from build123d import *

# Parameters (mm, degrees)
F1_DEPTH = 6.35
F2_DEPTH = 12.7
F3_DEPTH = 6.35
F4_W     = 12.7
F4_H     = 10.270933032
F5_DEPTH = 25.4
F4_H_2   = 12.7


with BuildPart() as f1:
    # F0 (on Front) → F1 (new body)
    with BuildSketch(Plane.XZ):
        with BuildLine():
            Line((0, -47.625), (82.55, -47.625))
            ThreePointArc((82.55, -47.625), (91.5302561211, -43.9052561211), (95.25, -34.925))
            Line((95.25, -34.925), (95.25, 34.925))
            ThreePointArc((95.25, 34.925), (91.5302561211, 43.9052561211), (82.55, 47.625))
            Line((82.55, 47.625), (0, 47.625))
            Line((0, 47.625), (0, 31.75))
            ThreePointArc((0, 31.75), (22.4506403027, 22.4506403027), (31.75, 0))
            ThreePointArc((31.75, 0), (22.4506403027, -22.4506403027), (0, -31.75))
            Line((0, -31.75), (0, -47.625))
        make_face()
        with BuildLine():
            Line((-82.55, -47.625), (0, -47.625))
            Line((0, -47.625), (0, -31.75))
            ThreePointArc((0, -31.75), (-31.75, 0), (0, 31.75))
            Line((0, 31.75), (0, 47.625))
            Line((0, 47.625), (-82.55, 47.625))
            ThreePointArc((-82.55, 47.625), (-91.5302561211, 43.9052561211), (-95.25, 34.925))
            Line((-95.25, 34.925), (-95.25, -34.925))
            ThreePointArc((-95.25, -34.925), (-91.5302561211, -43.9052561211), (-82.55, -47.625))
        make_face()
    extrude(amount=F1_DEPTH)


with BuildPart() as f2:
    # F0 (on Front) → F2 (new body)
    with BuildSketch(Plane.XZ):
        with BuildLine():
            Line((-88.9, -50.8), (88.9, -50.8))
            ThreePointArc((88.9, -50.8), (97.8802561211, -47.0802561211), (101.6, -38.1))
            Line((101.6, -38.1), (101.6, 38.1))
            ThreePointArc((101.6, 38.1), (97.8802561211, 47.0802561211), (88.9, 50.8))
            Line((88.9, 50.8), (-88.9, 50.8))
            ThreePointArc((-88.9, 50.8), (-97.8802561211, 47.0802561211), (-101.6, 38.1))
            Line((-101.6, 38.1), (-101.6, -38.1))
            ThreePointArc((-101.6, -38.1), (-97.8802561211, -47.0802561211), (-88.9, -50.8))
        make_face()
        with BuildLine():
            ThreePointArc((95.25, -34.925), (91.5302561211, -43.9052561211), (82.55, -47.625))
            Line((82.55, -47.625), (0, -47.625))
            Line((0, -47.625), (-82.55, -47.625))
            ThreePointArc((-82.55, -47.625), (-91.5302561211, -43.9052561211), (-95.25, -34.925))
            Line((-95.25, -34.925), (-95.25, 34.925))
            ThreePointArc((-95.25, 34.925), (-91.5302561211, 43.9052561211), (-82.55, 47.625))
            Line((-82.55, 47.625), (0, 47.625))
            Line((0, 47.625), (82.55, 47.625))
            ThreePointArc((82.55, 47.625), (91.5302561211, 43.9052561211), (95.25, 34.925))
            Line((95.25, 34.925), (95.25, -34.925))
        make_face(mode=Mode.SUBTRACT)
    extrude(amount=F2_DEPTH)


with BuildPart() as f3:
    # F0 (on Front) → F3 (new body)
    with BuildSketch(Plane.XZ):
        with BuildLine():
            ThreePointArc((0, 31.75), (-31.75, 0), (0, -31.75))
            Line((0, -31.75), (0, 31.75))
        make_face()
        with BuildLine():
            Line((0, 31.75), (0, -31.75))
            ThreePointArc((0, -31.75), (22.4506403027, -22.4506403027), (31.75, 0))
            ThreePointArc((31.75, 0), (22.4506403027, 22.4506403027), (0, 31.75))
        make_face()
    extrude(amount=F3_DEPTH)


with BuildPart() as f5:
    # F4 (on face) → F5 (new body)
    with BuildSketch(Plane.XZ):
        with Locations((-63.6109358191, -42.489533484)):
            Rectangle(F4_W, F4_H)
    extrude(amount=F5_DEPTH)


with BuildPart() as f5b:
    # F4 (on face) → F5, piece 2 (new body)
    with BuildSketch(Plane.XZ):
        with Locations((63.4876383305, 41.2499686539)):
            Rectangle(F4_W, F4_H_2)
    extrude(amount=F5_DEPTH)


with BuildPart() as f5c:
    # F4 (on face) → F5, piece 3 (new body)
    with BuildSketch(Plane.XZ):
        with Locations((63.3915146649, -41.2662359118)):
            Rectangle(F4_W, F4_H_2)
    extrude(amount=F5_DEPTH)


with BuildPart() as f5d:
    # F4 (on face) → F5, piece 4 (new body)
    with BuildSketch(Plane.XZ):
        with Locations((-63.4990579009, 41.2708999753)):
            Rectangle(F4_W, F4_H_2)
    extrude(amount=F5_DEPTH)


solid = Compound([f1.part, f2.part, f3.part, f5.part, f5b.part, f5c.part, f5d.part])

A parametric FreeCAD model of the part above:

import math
import FreeCAD as App
import Part
import Sketcher

V = App.Vector
Q = App.Units.Quantity


def add_polygon(sketch, points):
    """Adds a closed chain of lines whose ends are joined by coincident constraints."""
    first, n = sketch.GeometryCount, len(points)
    for a, b in zip(points, points[1:] + points[:1]):
        sketch.addGeometry(Part.LineSegment(App.Vector(*a, 0), App.Vector(*b, 0)), False)
    for i in range(n):
        sketch.addConstraint(Sketcher.Constraint("Coincident", first + i, 2, first + (i + 1) % n, 1))

doc = App.newDocument("Part")
body = doc.addObject("PartDesign::Body", "Body")

# Sketch on XZ plane
sketch1 = body.newObject("Sketcher::SketchObject", "Sketch")
sketch1.AttachmentSupport = (doc.getObject("XZ_Plane"), [""])
sketch1.MapMode = "FlatFace"
sketch1.addGeometry(Part.ArcOfCircle(Part.Circle(V(83, -35, 0), V(0, 0, 1), 13), math.radians(-90), math.radians(0)), False)
sketch1.addGeometry(Part.LineSegment(V(95, -35, 0), V(95, 35, 0)), False)
sketch1.addGeometry(Part.ArcOfCircle(Part.Circle(V(83, 35, 0), V(0, 0, 1), 13), math.radians(0), math.radians(90)), False)
sketch1.addGeometry(Part.LineSegment(V(83, 48, 0), V(-83, 48, 0)), False)
sketch1.addGeometry(Part.ArcOfCircle(Part.Circle(V(-83, 35, 0), V(0, 0, 1), 13), math.radians(90), math.radians(180)), False)
sketch1.addGeometry(Part.LineSegment(V(-95, 35, 0), V(-95, -35, 0)), False)
sketch1.addGeometry(Part.ArcOfCircle(Part.Circle(V(-83, -35, 0), V(0, 0, 1), 13), math.radians(180), math.radians(270)), False)
sketch1.addGeometry(Part.LineSegment(V(-83, -48, 0), V(83, -48, 0)), False)
sketch1.addGeometry(Part.ArcOfCircle(Part.Circle(V(0, 0, 0), V(0, 0, 1), 32), math.radians(0), math.radians(90)), False)
sketch1.addGeometry(Part.ArcOfCircle(Part.Circle(V(0, 0, 0), V(0, 0, 1), 32), math.radians(-90), math.radians(0)), False)
sketch1.addGeometry(Part.ArcOfCircle(Part.Circle(V(0, 0, 0), V(0, 0, 1), 32), math.radians(90), math.radians(270)), False)
sketch1.addConstraint(Sketcher.Constraint("Tangent", 0, 2, 1, 1))
sketch1.addConstraint(Sketcher.Constraint("Tangent", 1, 2, 2, 1))
sketch1.addConstraint(Sketcher.Constraint("Tangent", 2, 2, 3, 1))
sketch1.addConstraint(Sketcher.Constraint("Tangent", 3, 2, 4, 1))
sketch1.addConstraint(Sketcher.Constraint("Tangent", 4, 2, 5, 1))
sketch1.addConstraint(Sketcher.Constraint("Tangent", 5, 2, 6, 1))
sketch1.addConstraint(Sketcher.Constraint("Tangent", 6, 2, 7, 1))
sketch1.addConstraint(Sketcher.Constraint("Tangent", 7, 2, 0, 1))
sketch1.addConstraint(Sketcher.Constraint("Tangent", 8, 1, 9, 2))
sketch1.addConstraint(Sketcher.Constraint("Tangent", 9, 1, 10, 2))
sketch1.addConstraint(Sketcher.Constraint("Tangent", 10, 1, 8, 2))
sketch1.addConstraint(Sketcher.Constraint("Vertical", 1))
sketch1.addConstraint(Sketcher.Constraint("Horizontal", 3))
sketch1.addConstraint(Sketcher.Constraint("Vertical", 5))
sketch1.addConstraint(Sketcher.Constraint("Horizontal", 7))
sketch1.addConstraint(Sketcher.Constraint("Coincident", 8, 3, -1, 1))
sketch1.addConstraint(Sketcher.Constraint("Equal", 0, 2))
sketch1.addConstraint(Sketcher.Constraint("Equal", 2, 4))
sketch1.addConstraint(Sketcher.Constraint("Equal", 4, 6))
sketch1.addConstraint(Sketcher.Constraint("Symmetric", 0, 3, 4, 3, -1, 1))
sketch1.addConstraint(Sketcher.Constraint("PointOnObject", 8, 1, -1))
sketch1.addConstraint(Sketcher.Constraint("PointOnObject", 9, 1, -2))
sketch1.addConstraint(Sketcher.Constraint("PointOnObject", 10, 1, -2))
sketch1.addConstraint(Sketcher.Constraint("Radius", 0, Q("0.5 in")))
sketch1.addConstraint(Sketcher.Constraint("Radius", 8, Q("1.25 in")))
sketch1.addConstraint(Sketcher.Constraint("DistanceX", 3, 2, 3, 1, Q("6.5 in")))
sketch1.addConstraint(Sketcher.Constraint("DistanceY", 1, 1, 1, 2, Q("2.75 in")))
pad1 = body.newObject("PartDesign::Pad", "Pad")
pad1.Profile = sketch1
pad1.Length = Q("0.25 in")
body2 = doc.addObject("PartDesign::Body", "Body001")

# Sketch on XZ plane
sketch2 = body2.newObject("Sketcher::SketchObject", "Sketch001")
sketch2.AttachmentSupport = (doc.getObject("XZ_Plane001"), [""])
sketch2.MapMode = "FlatFace"
sketch2.addGeometry(Part.LineSegment(V(-89, -51, 0), V(89, -51, 0)), False)
sketch2.addGeometry(Part.ArcOfCircle(Part.Circle(V(89, -38, 0), V(0, 0, 1), 13), math.radians(-90), math.radians(0)), False)
sketch2.addGeometry(Part.LineSegment(V(102, -38, 0), V(102, 38, 0)), False)
sketch2.addGeometry(Part.ArcOfCircle(Part.Circle(V(89, 38, 0), V(0, 0, 1), 13), math.radians(0), math.radians(90)), False)
sketch2.addGeometry(Part.LineSegment(V(89, 51, 0), V(-89, 51, 0)), False)
sketch2.addGeometry(Part.ArcOfCircle(Part.Circle(V(-89, 38, 0), V(0, 0, 1), 13), math.radians(90), math.radians(180)), False)
sketch2.addGeometry(Part.LineSegment(V(-102, 38, 0), V(-102, -38, 0)), False)
sketch2.addGeometry(Part.ArcOfCircle(Part.Circle(V(-89, -38, 0), V(0, 0, 1), 13), math.radians(180), math.radians(270)), False)
sketch2.addGeometry(Part.LineSegment(V(95, 35, 0), V(95, -35, 0)), False)
sketch2.addGeometry(Part.ArcOfCircle(Part.Circle(V(83, -35, 0), V(0, 0, 1), 13), math.radians(-90), math.radians(0)), False)
sketch2.addGeometry(Part.LineSegment(V(83, -48, 0), V(-83, -48, 0)), False)
sketch2.addGeometry(Part.ArcOfCircle(Part.Circle(V(-83, -35, 0), V(0, 0, 1), 13), math.radians(180), math.radians(270)), False)
sketch2.addGeometry(Part.LineSegment(V(-95, -35, 0), V(-95, 35, 0)), False)
sketch2.addGeometry(Part.ArcOfCircle(Part.Circle(V(-83, 35, 0), V(0, 0, 1), 13), math.radians(90), math.radians(180)), False)
sketch2.addGeometry(Part.LineSegment(V(-83, 48, 0), V(83, 48, 0)), False)
sketch2.addGeometry(Part.ArcOfCircle(Part.Circle(V(83, 35, 0), V(0, 0, 1), 13), math.radians(0), math.radians(90)), False)
sketch2.addConstraint(Sketcher.Constraint("Tangent", 0, 2, 1, 1))
sketch2.addConstraint(Sketcher.Constraint("Tangent", 1, 2, 2, 1))
sketch2.addConstraint(Sketcher.Constraint("Tangent", 2, 2, 3, 1))
sketch2.addConstraint(Sketcher.Constraint("Tangent", 3, 2, 4, 1))
sketch2.addConstraint(Sketcher.Constraint("Tangent", 4, 2, 5, 1))
sketch2.addConstraint(Sketcher.Constraint("Tangent", 5, 2, 6, 1))
sketch2.addConstraint(Sketcher.Constraint("Tangent", 6, 2, 7, 1))
sketch2.addConstraint(Sketcher.Constraint("Tangent", 7, 2, 0, 1))
sketch2.addConstraint(Sketcher.Constraint("Tangent", 8, 2, 9, 2))
sketch2.addConstraint(Sketcher.Constraint("Tangent", 9, 1, 10, 1))
sketch2.addConstraint(Sketcher.Constraint("Tangent", 10, 2, 11, 2))
sketch2.addConstraint(Sketcher.Constraint("Tangent", 11, 1, 12, 1))
sketch2.addConstraint(Sketcher.Constraint("Tangent", 12, 2, 13, 2))
sketch2.addConstraint(Sketcher.Constraint("Tangent", 13, 1, 14, 1))
sketch2.addConstraint(Sketcher.Constraint("Tangent", 14, 2, 15, 2))
sketch2.addConstraint(Sketcher.Constraint("Tangent", 15, 1, 8, 1))
sketch2.addConstraint(Sketcher.Constraint("Horizontal", 0))
sketch2.addConstraint(Sketcher.Constraint("Vertical", 2))
sketch2.addConstraint(Sketcher.Constraint("Horizontal", 4))
sketch2.addConstraint(Sketcher.Constraint("Vertical", 6))
sketch2.addConstraint(Sketcher.Constraint("Vertical", 8))
sketch2.addConstraint(Sketcher.Constraint("Horizontal", 10))
sketch2.addConstraint(Sketcher.Constraint("Vertical", 12))
sketch2.addConstraint(Sketcher.Constraint("Horizontal", 14))
sketch2.addConstraint(Sketcher.Constraint("Equal", 1, 3))
sketch2.addConstraint(Sketcher.Constraint("Equal", 3, 5))
sketch2.addConstraint(Sketcher.Constraint("Equal", 5, 7))
sketch2.addConstraint(Sketcher.Constraint("Equal", 7, 9))
sketch2.addConstraint(Sketcher.Constraint("Equal", 9, 11))
sketch2.addConstraint(Sketcher.Constraint("Equal", 11, 13))
sketch2.addConstraint(Sketcher.Constraint("Equal", 13, 15))
sketch2.addConstraint(Sketcher.Constraint("Symmetric", 1, 3, 5, 3, -1, 1))
sketch2.addConstraint(Sketcher.Constraint("Symmetric", 9, 3, 13, 3, -1, 1))
sketch2.addConstraint(Sketcher.Constraint("Radius", 1, Q("0.5 in")))
sketch2.addConstraint(Sketcher.Constraint("DistanceX", 0, 1, 0, 2, Q("7 in")))
sketch2.addConstraint(Sketcher.Constraint("DistanceY", 2, 1, 2, 2, Q("3 in")))
sketch2.addConstraint(Sketcher.Constraint("DistanceX", 10, 2, 10, 1, Q("6.5 in")))
sketch2.addConstraint(Sketcher.Constraint("DistanceY", 8, 2, 8, 1, Q("2.75 in")))
pad2 = body2.newObject("PartDesign::Pad", "Pad001")
pad2.Profile = sketch2
pad2.Length = Q("0.5 in")
body3 = doc.addObject("PartDesign::Body", "Body002")

# Sketch on XZ plane
sketch3 = body3.newObject("Sketcher::SketchObject", "Sketch002")
sketch3.AttachmentSupport = (doc.getObject("XZ_Plane002"), [""])
sketch3.MapMode = "FlatFace"
sketch3.addGeometry(Part.ArcOfCircle(Part.Circle(V(0, 0, 0), V(0, 0, 1), 32), math.radians(90), math.radians(270)), False)
sketch3.addGeometry(Part.ArcOfCircle(Part.Circle(V(0, 0, 0), V(0, 0, 1), 32), math.radians(-90), math.radians(0)), False)
sketch3.addGeometry(Part.ArcOfCircle(Part.Circle(V(0, 0, 0), V(0, 0, 1), 32), math.radians(0), math.radians(90)), False)
sketch3.addConstraint(Sketcher.Constraint("Tangent", 0, 2, 1, 1))
sketch3.addConstraint(Sketcher.Constraint("Tangent", 1, 2, 2, 1))
sketch3.addConstraint(Sketcher.Constraint("Tangent", 2, 2, 0, 1))
sketch3.addConstraint(Sketcher.Constraint("Coincident", 0, 3, -1, 1))
sketch3.addConstraint(Sketcher.Constraint("PointOnObject", 0, 2, -2))
sketch3.addConstraint(Sketcher.Constraint("PointOnObject", 1, 2, -1))
sketch3.addConstraint(Sketcher.Constraint("PointOnObject", 2, 2, -2))
sketch3.addConstraint(Sketcher.Constraint("Radius", 0, Q("1.25 in")))
pad3 = body3.newObject("PartDesign::Pad", "Pad002")
pad3.Profile = sketch3
pad3.Length = Q("0.25 in")
body4 = doc.addObject("PartDesign::Body", "Body003")

# Sketch on XZ plane
sketch4 = body4.newObject("Sketcher::SketchObject", "Sketch003")
sketch4.AttachmentSupport = (doc.getObject("XZ_Plane003"), [""])
sketch4.MapMode = "FlatFace"
add_polygon(sketch4, [(-70, -37), (-70, -48), (-57, -48), (-57, -37)])  # lines 0-3
sketch4.addConstraint(Sketcher.Constraint("Vertical", 0))
sketch4.addConstraint(Sketcher.Constraint("Horizontal", 1))
sketch4.addConstraint(Sketcher.Constraint("Vertical", 2))
sketch4.addConstraint(Sketcher.Constraint("Horizontal", 3))
sketch4.addConstraint(Sketcher.Constraint("DistanceX", 1, 1, 1, 2, Q("0.5 in")))
sketch4.addConstraint(Sketcher.Constraint("DistanceY", 0, 2, -1, 1, Q("1.875 in")))
sketch4.addConstraint(Sketcher.Constraint("DistanceY", 0, 2, 0, 1, 10.270933))
sketch4.addConstraint(Sketcher.Constraint("DistanceX", 0, 2, -1, 1, 69.960936))
pad4 = body4.newObject("PartDesign::Pad", "Pad003")
pad4.Profile = sketch4
pad4.Length = Q("1 in")
body5 = doc.addObject("PartDesign::Body", "Body004")

# Sketch on XZ plane
sketch5 = body5.newObject("Sketcher::SketchObject", "Sketch004")
sketch5.AttachmentSupport = (doc.getObject("XZ_Plane004"), [""])
sketch5.MapMode = "FlatFace"
add_polygon(sketch5, [(57, 48), (57, 35), (70, 35), (70, 48)])  # lines 0-3
sketch5.addConstraint(Sketcher.Constraint("Vertical", 0))
sketch5.addConstraint(Sketcher.Constraint("Horizontal", 1))
sketch5.addConstraint(Sketcher.Constraint("Vertical", 2))
sketch5.addConstraint(Sketcher.Constraint("Horizontal", 3))
sketch5.addConstraint(Sketcher.Constraint("Equal", 3, 0))
sketch5.addConstraint(Sketcher.Constraint("DistanceX", 1, 1, 1, 2, Q("0.5 in")))
sketch5.addConstraint(Sketcher.Constraint("DistanceX", -1, 1, 0, 2, 57.137638))
sketch5.addConstraint(Sketcher.Constraint("DistanceY", -1, 1, 0, 2, 34.899969))
pad5 = body5.newObject("PartDesign::Pad", "Pad004")
pad5.Profile = sketch5
pad5.Length = Q("1 in")
body6 = doc.addObject("PartDesign::Body", "Body005")

# Sketch on XZ plane
sketch6 = body6.newObject("Sketcher::SketchObject", "Sketch005")
sketch6.AttachmentSupport = (doc.getObject("XZ_Plane005"), [""])
sketch6.MapMode = "FlatFace"
add_polygon(sketch6, [(57, -35), (57, -48), (70, -48), (70, -35)])  # lines 0-3
sketch6.addConstraint(Sketcher.Constraint("Vertical", 0))
sketch6.addConstraint(Sketcher.Constraint("Horizontal", 1))
sketch6.addConstraint(Sketcher.Constraint("Vertical", 2))
sketch6.addConstraint(Sketcher.Constraint("Horizontal", 3))
sketch6.addConstraint(Sketcher.Constraint("Equal", 3, 0))
sketch6.addConstraint(Sketcher.Constraint("DistanceX", 1, 1, 1, 2, Q("0.5 in")))
sketch6.addConstraint(Sketcher.Constraint("DistanceX", -1, 1, 0, 2, 57.041515))
sketch6.addConstraint(Sketcher.Constraint("DistanceY", 0, 2, -1, 1, 47.616236))
pad6 = body6.newObject("PartDesign::Pad", "Pad005")
pad6.Profile = sketch6
pad6.Length = Q("1 in")
body7 = doc.addObject("PartDesign::Body", "Body006")

# Sketch on XZ plane
sketch7 = body7.newObject("Sketcher::SketchObject", "Sketch006")
sketch7.AttachmentSupport = (doc.getObject("XZ_Plane006"), [""])
sketch7.MapMode = "FlatFace"
add_polygon(sketch7, [(-70, 48), (-70, 35), (-57, 35), (-57, 48)])  # lines 0-3
sketch7.addConstraint(Sketcher.Constraint("Vertical", 0))
sketch7.addConstraint(Sketcher.Constraint("Horizontal", 1))
sketch7.addConstraint(Sketcher.Constraint("Vertical", 2))
sketch7.addConstraint(Sketcher.Constraint("Horizontal", 3))
sketch7.addConstraint(Sketcher.Constraint("Equal", 3, 0))
sketch7.addConstraint(Sketcher.Constraint("DistanceX", 1, 1, 1, 2, Q("0.5 in")))
sketch7.addConstraint(Sketcher.Constraint("DistanceY", -1, 1, 0, 2, 34.9209))
sketch7.addConstraint(Sketcher.Constraint("DistanceX", 0, 2, -1, 1, 69.849058))
pad7 = body7.newObject("PartDesign::Pad", "Pad006")
pad7.Profile = sketch7
pad7.Length = Q("1 in")

doc.recompute()
